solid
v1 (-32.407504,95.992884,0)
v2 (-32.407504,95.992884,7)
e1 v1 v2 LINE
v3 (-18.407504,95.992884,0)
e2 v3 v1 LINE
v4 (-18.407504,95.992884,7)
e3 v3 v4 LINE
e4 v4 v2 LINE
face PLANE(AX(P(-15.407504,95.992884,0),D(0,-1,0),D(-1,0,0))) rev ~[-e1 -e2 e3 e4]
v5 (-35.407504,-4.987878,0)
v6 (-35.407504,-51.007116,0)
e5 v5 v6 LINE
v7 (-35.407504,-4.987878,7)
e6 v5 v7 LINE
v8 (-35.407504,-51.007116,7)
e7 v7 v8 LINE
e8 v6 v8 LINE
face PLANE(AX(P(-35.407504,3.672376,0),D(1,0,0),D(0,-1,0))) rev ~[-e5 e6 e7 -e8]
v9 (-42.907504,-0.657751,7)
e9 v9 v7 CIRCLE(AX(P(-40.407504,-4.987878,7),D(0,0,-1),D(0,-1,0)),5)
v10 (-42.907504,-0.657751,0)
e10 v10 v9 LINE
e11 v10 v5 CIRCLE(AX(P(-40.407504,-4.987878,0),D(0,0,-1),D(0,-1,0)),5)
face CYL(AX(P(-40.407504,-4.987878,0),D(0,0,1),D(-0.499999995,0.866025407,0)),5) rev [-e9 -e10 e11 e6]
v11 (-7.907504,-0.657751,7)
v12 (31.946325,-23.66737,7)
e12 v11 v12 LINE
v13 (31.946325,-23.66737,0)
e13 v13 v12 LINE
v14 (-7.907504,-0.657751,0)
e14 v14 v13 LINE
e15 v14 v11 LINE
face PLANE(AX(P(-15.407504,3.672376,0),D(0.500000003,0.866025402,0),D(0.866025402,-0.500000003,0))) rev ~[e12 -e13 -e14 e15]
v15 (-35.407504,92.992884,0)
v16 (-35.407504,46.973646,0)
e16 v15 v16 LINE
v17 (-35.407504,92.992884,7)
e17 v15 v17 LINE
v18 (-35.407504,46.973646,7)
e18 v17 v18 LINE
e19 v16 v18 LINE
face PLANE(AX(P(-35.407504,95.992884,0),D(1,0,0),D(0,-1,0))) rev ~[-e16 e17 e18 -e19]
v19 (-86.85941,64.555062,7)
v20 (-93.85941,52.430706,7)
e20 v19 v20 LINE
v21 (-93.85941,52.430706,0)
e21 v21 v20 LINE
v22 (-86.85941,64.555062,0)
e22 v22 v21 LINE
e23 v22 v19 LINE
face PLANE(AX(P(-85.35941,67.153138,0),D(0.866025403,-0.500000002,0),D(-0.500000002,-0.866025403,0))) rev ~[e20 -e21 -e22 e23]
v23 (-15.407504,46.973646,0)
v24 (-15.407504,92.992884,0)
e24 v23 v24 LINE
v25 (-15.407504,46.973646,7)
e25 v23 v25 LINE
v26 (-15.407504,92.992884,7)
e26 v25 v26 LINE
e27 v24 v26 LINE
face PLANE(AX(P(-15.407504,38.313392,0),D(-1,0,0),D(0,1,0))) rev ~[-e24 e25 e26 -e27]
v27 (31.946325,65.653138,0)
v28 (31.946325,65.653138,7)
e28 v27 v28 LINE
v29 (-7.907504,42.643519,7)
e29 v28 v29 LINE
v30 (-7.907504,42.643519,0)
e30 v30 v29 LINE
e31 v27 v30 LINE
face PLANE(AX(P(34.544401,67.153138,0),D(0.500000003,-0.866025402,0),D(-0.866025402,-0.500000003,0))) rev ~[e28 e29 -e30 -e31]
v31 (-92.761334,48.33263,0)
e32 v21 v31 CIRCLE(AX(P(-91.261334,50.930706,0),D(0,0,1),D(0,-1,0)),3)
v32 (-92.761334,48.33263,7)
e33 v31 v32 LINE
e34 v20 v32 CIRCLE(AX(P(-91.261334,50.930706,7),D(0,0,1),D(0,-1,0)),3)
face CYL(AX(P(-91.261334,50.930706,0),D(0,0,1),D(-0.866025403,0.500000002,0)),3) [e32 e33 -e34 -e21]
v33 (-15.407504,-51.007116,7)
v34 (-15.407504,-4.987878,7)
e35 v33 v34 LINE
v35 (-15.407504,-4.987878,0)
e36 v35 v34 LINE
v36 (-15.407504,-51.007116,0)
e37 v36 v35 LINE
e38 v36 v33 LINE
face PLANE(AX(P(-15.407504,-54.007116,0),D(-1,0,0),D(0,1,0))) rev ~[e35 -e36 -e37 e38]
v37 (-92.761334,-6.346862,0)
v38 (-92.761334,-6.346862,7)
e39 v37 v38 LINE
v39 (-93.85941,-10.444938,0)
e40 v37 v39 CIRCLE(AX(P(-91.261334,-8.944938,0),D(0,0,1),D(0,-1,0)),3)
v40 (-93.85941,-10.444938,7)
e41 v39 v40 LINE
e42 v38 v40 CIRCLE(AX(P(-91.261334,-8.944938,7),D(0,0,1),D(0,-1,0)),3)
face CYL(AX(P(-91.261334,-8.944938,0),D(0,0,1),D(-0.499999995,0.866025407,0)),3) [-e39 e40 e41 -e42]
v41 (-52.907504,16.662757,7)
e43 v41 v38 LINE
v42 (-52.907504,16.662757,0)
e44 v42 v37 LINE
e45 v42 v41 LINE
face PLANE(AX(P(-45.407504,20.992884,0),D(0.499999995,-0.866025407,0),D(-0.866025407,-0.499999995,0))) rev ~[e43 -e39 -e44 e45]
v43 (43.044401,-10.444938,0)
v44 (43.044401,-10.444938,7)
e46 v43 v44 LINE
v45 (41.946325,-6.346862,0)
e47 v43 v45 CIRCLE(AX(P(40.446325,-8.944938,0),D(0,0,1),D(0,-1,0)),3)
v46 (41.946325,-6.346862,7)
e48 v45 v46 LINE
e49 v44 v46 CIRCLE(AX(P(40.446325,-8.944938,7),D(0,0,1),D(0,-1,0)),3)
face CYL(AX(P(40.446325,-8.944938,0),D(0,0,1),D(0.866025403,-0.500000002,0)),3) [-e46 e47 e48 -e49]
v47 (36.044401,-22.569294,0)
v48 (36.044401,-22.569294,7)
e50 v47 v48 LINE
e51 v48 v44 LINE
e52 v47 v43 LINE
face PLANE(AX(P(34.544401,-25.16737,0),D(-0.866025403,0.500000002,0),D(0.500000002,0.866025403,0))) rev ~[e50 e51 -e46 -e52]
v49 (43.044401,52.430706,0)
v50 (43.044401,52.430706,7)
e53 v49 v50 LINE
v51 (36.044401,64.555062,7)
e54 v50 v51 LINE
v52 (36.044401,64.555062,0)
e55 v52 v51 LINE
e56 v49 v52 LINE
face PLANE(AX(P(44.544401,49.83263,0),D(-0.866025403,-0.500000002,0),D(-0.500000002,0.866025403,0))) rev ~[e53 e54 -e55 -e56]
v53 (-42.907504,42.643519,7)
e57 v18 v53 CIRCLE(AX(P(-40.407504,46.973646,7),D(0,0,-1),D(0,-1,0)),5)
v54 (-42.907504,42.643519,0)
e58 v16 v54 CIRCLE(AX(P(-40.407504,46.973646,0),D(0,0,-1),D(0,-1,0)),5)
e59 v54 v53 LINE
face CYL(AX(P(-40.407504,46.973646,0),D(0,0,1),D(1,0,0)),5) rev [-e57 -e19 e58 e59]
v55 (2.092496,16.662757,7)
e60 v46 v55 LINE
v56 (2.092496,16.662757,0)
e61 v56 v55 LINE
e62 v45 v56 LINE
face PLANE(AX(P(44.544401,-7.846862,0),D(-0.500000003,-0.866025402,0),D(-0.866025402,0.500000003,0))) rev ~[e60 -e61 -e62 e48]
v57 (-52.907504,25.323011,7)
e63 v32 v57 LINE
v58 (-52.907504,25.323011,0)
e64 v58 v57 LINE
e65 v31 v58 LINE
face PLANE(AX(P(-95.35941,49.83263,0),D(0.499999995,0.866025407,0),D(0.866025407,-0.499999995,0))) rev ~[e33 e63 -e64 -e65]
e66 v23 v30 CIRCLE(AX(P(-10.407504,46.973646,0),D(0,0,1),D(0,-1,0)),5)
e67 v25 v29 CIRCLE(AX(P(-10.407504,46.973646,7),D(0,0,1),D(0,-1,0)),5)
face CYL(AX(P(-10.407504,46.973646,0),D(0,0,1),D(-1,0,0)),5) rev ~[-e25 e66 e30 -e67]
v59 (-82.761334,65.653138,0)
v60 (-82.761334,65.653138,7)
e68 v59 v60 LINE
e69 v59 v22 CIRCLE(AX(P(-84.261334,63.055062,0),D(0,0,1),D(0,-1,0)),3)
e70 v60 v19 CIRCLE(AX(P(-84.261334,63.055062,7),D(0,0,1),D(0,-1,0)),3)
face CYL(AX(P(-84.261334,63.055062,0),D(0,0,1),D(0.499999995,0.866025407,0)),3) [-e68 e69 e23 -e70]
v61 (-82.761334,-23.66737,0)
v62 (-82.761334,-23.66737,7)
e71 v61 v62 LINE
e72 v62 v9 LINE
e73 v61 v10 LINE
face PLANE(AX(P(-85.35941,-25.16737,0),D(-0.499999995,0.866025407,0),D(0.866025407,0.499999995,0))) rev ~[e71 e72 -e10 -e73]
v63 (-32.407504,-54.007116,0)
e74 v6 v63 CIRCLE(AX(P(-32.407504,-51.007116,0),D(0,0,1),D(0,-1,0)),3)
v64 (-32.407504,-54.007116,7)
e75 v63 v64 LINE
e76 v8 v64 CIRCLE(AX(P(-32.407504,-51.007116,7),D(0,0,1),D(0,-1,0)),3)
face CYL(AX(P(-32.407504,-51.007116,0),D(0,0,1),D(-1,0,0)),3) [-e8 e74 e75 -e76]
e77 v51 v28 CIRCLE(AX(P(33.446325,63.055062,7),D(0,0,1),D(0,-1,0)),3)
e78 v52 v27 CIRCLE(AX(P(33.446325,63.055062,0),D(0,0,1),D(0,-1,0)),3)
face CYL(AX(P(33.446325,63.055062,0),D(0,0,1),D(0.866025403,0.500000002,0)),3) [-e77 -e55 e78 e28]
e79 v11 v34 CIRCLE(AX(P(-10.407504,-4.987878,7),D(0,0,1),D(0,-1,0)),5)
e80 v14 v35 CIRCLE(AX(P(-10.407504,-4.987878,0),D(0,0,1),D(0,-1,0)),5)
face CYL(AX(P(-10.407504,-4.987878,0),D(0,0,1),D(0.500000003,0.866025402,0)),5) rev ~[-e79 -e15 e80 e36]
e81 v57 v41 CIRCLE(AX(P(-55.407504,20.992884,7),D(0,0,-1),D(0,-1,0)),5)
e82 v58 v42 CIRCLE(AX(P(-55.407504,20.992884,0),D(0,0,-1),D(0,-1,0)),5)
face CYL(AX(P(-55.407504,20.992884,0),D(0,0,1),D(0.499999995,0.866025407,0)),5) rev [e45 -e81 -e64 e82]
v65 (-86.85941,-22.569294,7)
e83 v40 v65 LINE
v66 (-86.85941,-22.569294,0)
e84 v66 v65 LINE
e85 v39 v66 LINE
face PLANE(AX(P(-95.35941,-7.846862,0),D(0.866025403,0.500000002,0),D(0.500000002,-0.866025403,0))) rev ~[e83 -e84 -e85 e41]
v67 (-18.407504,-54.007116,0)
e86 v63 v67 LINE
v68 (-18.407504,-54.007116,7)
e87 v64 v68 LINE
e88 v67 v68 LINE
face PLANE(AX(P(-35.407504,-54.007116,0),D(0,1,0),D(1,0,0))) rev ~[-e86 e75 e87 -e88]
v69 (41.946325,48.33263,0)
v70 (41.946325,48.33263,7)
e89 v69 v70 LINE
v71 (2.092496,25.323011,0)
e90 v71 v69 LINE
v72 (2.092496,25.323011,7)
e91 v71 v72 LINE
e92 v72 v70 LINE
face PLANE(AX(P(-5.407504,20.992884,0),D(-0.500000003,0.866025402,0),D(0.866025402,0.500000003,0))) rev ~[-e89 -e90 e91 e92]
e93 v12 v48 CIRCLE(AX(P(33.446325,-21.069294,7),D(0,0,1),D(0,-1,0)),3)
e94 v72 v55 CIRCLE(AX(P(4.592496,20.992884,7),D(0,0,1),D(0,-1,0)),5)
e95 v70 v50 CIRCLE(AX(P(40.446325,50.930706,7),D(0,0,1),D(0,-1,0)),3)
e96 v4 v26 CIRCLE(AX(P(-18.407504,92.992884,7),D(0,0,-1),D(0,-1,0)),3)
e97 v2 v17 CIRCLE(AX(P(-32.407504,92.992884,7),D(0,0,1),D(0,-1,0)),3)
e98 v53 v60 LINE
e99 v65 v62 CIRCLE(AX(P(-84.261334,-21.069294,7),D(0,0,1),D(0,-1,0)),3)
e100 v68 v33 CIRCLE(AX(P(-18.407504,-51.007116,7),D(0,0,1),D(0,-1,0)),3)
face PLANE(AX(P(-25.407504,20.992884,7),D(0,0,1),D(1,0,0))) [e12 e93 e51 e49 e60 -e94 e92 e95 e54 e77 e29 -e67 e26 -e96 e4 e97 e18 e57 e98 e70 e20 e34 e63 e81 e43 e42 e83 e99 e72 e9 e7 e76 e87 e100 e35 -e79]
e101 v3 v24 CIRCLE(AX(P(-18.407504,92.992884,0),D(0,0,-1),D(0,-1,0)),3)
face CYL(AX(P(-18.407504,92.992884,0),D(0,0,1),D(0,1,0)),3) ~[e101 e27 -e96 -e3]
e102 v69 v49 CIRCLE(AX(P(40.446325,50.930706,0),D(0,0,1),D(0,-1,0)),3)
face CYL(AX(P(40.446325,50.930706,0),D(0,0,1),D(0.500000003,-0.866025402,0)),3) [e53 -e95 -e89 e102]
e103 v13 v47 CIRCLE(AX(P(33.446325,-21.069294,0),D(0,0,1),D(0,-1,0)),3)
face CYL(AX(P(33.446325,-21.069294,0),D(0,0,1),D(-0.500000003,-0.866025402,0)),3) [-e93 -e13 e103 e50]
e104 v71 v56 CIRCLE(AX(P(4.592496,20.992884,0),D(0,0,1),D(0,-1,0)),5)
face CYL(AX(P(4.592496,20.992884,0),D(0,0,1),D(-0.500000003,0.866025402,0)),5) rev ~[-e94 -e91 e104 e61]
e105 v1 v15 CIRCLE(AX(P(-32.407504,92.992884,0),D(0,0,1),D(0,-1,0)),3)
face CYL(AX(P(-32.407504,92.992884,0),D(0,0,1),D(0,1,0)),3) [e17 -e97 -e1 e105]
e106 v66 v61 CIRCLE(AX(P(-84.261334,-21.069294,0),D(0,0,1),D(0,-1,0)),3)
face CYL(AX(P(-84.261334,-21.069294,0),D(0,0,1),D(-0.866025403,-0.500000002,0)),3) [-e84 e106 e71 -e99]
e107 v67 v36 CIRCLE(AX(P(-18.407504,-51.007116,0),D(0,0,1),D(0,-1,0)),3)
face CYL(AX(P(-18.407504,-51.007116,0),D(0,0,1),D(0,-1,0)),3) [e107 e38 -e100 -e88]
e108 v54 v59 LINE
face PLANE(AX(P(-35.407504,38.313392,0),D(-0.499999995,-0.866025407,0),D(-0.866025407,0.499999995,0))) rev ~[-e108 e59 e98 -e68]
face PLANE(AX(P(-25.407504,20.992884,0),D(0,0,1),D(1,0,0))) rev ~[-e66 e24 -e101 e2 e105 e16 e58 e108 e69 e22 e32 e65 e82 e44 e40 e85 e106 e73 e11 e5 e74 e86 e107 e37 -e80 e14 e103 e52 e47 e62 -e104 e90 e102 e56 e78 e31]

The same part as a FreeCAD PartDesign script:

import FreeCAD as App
import Part
import Sketcher
from FreeCAD import Vector
Q = App.Units.Quantity


def edges_at(feature, points):
    """Names of the edges that pass closest to the given points."""
    edges = feature.Shape.Edges
    near = lambda p: min(range(len(edges)), key=lambda i: edges[i].distToShape(Part.Vertex(*p))[0])
    return sorted({f"Edge{near(p) + 1}" for p in points})


def add_polygon(sketch, points):
    """Adds a closed chain of lines whose ends are joined by coincident constraints."""
    first, n = sketch.GeometryCount, len(points)
    for a, b in zip(points, points[1:] + points[:1]):
        sketch.addGeometry(Part.LineSegment(App.Vector(*a, 0), App.Vector(*b, 0)), False)
    for i in range(n):
        sketch.addConstraint(Sketcher.Constraint("Coincident", first + i, 2, first + (i + 1) % n, 1))

doc = App.newDocument("Part")
body = doc.addObject("PartDesign::Body", "Body")

# Sketch on XY plane
sketch1 = doc.addObject("Sketcher::SketchObject", "Sketch")
body.addObject(sketch1)
sketch1.AttachmentSupport = (doc.XY_Plane, [""])
sketch1.MapMode = "FlatFace"
add_polygon(sketch1, [(-15, 96), (-35, 96), (-35, 38), (-85, 67), (-95, 50), (-45, 21), (-95, -8), (-85, -25), (-35, 4), (-35, -54), (-15, -54), (-15, 4), (35, -25), (45, -8), (-5, 21), (45, 50), (35, 67), (-15, 38)])  # lines 0-17
sketch1.addConstraint([
    Sketcher.Constraint("Horizontal", 0),
    Sketcher.Constraint("Vertical", 1),
    Sketcher.Constraint("Vertical", 8),
    Sketcher.Constraint("Horizontal", 9),
    Sketcher.Constraint("Vertical", 10),
    Sketcher.Constraint("Vertical", 17),
    Sketcher.Constraint("Perpendicular", 2, 3),
    Sketcher.Constraint("Perpendicular", 3, 4),
    Sketcher.Constraint("Perpendicular", 5, 6),
    Sketcher.Constraint("Perpendicular", 6, 7),
    Sketcher.Constraint("Parallel", 4, 11),
    Sketcher.Constraint("Perpendicular", 11, 12),
    Sketcher.Constraint("Perpendicular", 12, 13),
    Sketcher.Constraint("Parallel", 7, 14),
    Sketcher.Constraint("Perpendicular", 14, 15),
    Sketcher.Constraint("Perpendicular", 15, 16),
    Sketcher.Constraint("Horizontal", 7, 2, 10, 2),
    Sketcher.Constraint("Horizontal", 6, 2, 11, 2),
    Sketcher.Constraint("Horizontal", 5, 2, 12, 2),
    Sketcher.Constraint("Horizontal", 4, 2, 13, 2),
    Sketcher.Constraint("Horizontal", 3, 2, 14, 2),
    Sketcher.Constraint("Horizontal", 2, 2, 15, 2),
    Sketcher.Constraint("Horizontal", 1, 2, 16, 2),
    Sketcher.Constraint("Vertical", 3, 2, 5, 2),
    Sketcher.Constraint("Vertical", 2, 2, 6, 2),
    Sketcher.Constraint("Vertical", 1, 2, 7, 2),
    Sketcher.Constraint("Vertical", 12, 2, 14, 2),
    Sketcher.Constraint("Equal", 1, 8),
    Sketcher.Constraint("Equal", 2, 4),
    Sketcher.Constraint("DistanceX", 0, 2, 0, 1, 20.0),
    Sketcher.Constraint("Angle", 2, Q("150 deg")),
    Sketcher.Constraint("Distance", 3, 20.0),
    Sketcher.Constraint("DistanceY", 4, 2, 0, 2, 75.0),
    Sketcher.Constraint("DistanceY", 5, 2, 2, 2, 75.0),
    Sketcher.Constraint("DistanceX", -1, 1, 11, 2, 34.544401),
    Sketcher.Constraint("DistanceY", -1, 1, 2, 2, 67.153138),
])
pad1 = doc.addObject("PartDesign::Pad", "Pad")
body.addObject(pad1)
pad1.Profile = sketch1
pad1.Length = 7
doc.recompute()

fillet = doc.addObject("PartDesign::Fillet", "Fillet")
body.addObject(fillet)
fillet.Base = (pad1, edges_at(pad1, [
    (-35.408, -54.007, 3.5),
    (-15.408, -54.007, 3.5),
    (34.544, -25.167, 3.5),
    (44.544, -7.847, 3.5),
    (44.544, 49.833, 3.5),
    (34.544, 67.153, 3.5),
    (-85.359, -25.167, 3.5),
    (-95.359, -7.847, 3.5),
    (-85.359, 67.153, 3.5),
    (-95.359, 49.833, 3.5),
    (-35.408, 95.993, 3.5),
]))
fillet.Radius = 3
doc.recompute()

fillet2 = doc.addObject("PartDesign::Fillet", "Fillet001")
body.addObject(fillet2)
fillet2.Base = (fillet, edges_at(fillet, [(-15.408, 95.993, 3.5)]))
fillet2.Radius = 3
doc.recompute()

fillet3 = doc.addObject("PartDesign::Fillet", "Fillet002")
body.addObject(fillet3)
fillet3.Base = (fillet2, edges_at(fillet2, [
    (-35.408, 38.313, 3.5),
    (-15.408, 38.313, 3.5),
    (-5.408, 20.993, 3.5),
    (-45.408, 20.993, 3.5),
    (-35.408, 3.672, 3.5),
    (-15.408, 3.672, 3.5),
]))
fillet3.Radius = 5

doc.recompute()
